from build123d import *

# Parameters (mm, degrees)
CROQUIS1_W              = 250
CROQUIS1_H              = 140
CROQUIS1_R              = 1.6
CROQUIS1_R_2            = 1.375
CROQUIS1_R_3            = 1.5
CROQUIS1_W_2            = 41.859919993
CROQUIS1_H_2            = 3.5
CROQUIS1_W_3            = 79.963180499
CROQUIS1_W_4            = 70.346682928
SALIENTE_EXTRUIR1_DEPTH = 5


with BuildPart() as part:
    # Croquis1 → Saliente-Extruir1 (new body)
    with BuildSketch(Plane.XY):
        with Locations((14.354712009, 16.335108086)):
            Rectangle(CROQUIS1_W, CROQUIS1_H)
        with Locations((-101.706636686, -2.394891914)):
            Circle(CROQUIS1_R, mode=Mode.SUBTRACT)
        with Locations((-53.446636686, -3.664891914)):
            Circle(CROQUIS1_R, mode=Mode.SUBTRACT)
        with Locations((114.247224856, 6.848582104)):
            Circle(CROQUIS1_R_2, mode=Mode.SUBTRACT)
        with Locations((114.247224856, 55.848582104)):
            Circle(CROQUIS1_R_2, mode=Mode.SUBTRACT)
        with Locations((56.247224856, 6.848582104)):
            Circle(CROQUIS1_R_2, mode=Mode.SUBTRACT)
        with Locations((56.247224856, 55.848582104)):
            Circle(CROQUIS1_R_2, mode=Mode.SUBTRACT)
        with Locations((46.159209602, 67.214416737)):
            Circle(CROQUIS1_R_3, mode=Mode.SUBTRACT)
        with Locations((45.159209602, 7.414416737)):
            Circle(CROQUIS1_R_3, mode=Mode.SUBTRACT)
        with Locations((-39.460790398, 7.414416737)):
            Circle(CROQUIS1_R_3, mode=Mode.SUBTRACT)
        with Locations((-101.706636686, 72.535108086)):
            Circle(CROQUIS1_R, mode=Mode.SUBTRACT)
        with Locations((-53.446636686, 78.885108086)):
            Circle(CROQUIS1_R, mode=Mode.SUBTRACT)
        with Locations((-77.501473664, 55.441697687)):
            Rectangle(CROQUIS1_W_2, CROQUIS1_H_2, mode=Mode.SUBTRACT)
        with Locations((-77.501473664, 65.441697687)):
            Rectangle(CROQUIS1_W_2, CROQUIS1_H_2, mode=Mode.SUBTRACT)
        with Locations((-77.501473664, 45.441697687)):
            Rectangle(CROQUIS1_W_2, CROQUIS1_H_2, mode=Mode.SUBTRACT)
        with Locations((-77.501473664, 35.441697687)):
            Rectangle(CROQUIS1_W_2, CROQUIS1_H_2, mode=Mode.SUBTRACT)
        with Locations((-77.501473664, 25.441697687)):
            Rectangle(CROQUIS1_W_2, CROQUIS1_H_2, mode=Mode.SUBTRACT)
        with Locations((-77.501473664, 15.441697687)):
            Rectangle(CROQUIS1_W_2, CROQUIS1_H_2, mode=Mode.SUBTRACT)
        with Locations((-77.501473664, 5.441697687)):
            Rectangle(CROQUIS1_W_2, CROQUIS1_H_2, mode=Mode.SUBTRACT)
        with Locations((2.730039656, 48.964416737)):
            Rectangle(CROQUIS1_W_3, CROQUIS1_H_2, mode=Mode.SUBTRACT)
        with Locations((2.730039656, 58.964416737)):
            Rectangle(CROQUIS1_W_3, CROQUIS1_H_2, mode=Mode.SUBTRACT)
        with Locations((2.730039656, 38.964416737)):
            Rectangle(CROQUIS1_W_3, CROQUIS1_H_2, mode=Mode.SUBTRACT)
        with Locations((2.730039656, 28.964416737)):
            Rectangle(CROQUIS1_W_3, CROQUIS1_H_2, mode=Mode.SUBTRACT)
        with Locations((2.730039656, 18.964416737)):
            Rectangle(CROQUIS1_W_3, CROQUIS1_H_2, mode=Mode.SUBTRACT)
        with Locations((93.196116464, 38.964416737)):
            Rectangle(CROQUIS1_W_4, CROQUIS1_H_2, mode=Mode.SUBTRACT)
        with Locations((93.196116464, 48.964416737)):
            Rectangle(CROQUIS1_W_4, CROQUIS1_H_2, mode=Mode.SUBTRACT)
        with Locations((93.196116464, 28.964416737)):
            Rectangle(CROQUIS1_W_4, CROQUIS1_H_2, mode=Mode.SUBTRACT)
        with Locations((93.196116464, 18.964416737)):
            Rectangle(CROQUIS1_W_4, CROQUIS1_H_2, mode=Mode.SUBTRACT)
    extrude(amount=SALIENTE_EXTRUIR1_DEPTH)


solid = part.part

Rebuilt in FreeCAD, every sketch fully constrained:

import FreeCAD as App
import Part
import Sketcher
from FreeCAD import Vector
Q = App.Units.Quantity

doc = App.newDocument("Part")
body = doc.addObject("PartDesign::Body", "Body")

sketch1 = body.newObject("Sketcher::SketchObject", "Sketch")
sketch1.AttachmentSupport = (doc.getObject("XY_Plane"), [""])
sketch1.MapMode = "FlatFace"
sketch1.addGeometry([
    Part.LineSegment(Vector(-110.6, 86.3, 0), Vector(-110.6, -53.7, 0)),
    Part.LineSegment(Vector(-110.6, -53.7, 0), Vector(139.4, -53.7, 0)),
    Part.LineSegment(Vector(139.4, -53.7, 0), Vector(139.4, 86.3, 0)),
    Part.LineSegment(Vector(139.4, 86.3, 0), Vector(-110.6, 86.3, 0)),
    Part.Circle(Vector(-101.7, -2.4, 0), Vector(0, 0, 1), 1.6),
    Part.LineSegment(Vector(-56.6, 3.7, 0), Vector(-98.4, 3.7, 0)),
    Part.LineSegment(Vector(-98.4, 3.7, 0), Vector(-98.4, 7.2, 0)),
    Part.LineSegment(Vector(-98.4, 7.2, 0), Vector(-56.6, 7.2, 0)),
    Part.LineSegment(Vector(-56.6, 7.2, 0), Vector(-56.6, 3.7, 0)),
    Part.Circle(Vector(-53.4, -3.7, 0), Vector(0, 0, 1), 1.6),
    Part.LineSegment(Vector(-56.6, 13.7, 0), Vector(-98.4, 13.7, 0)),
    Part.LineSegment(Vector(-98.4, 13.7, 0), Vector(-98.4, 17.2, 0)),
    Part.LineSegment(Vector(-98.4, 17.2, 0), Vector(-56.6, 17.2, 0)),
    Part.LineSegment(Vector(-56.6, 17.2, 0), Vector(-56.6, 13.7, 0)),
    Part.Circle(Vector(-39.5, 7.4, 0), Vector(0, 0, 1), 1.5),
    Part.LineSegment(Vector(-56.6, 23.7, 0), Vector(-98.4, 23.7, 0)),
    Part.LineSegment(Vector(-98.4, 23.7, 0), Vector(-98.4, 27.2, 0)),
    Part.LineSegment(Vector(-98.4, 27.2, 0), Vector(-56.6, 27.2, 0)),
    Part.LineSegment(Vector(-56.6, 27.2, 0), Vector(-56.6, 23.7, 0)),
    Part.LineSegment(Vector(-56.6, 33.7, 0), Vector(-98.4, 33.7, 0)),
    Part.LineSegment(Vector(-98.4, 33.7, 0), Vector(-98.4, 37.2, 0)),
    Part.LineSegment(Vector(-98.4, 37.2, 0), Vector(-56.6, 37.2, 0)),
    Part.LineSegment(Vector(-56.6, 37.2, 0), Vector(-56.6, 33.7, 0)),
    Part.LineSegment(Vector(42.7, 17.2, 0), Vector(-37.3, 17.2, 0)),
    Part.LineSegment(Vector(-37.3, 17.2, 0), Vector(-37.3, 20.7, 0)),
    Part.LineSegment(Vector(-37.3, 20.7, 0), Vector(42.7, 20.7, 0)),
    Part.LineSegment(Vector(42.7, 20.7, 0), Vector(42.7, 17.2, 0)),
    Part.LineSegment(Vector(42.7, 27.2, 0), Vector(-37.3, 27.2, 0)),
    Part.LineSegment(Vector(-37.3, 27.2, 0), Vector(-37.3, 30.7, 0)),
    Part.LineSegment(Vector(-37.3, 30.7, 0), Vector(42.7, 30.7, 0)),
    Part.LineSegment(Vector(42.7, 30.7, 0), Vector(42.7, 27.2, 0)),
    Part.Circle(Vector(45.2, 7.4, 0), Vector(0, 0, 1), 1.5),
    Part.Circle(Vector(56.2, 6.8, 0), Vector(0, 0, 1), 1.4),
    Part.Circle(Vector(114.2, 6.8, 0), Vector(0, 0, 1), 1.4),
    Part.LineSegment(Vector(128.4, 17.2, 0), Vector(58, 17.2, 0)),
    Part.LineSegment(Vector(58, 17.2, 0), Vector(58, 20.7, 0)),
    Part.LineSegment(Vector(58, 20.7, 0), Vector(128.4, 20.7, 0)),
    Part.LineSegment(Vector(128.4, 20.7, 0), Vector(128.4, 17.2, 0)),
    Part.LineSegment(Vector(128.4, 27.2, 0), Vector(58, 27.2, 0)),
    Part.LineSegment(Vector(58, 27.2, 0), Vector(58, 30.7, 0)),
    Part.LineSegment(Vector(58, 30.7, 0), Vector(128.4, 30.7, 0)),
    Part.LineSegment(Vector(128.4, 30.7, 0), Vector(128.4, 27.2, 0)),
    Part.LineSegment(Vector(-56.6, 43.7, 0), Vector(-98.4, 43.7, 0)),
    Part.LineSegment(Vector(-98.4, 43.7, 0), Vector(-98.4, 47.2, 0)),
    Part.LineSegment(Vector(-98.4, 47.2, 0), Vector(-56.6, 47.2, 0)),
    Part.LineSegment(Vector(-56.6, 47.2, 0), Vector(-56.6, 43.7, 0)),
    Part.LineSegment(Vector(-56.6, 53.7, 0), Vector(-98.4, 53.7, 0)),
    Part.LineSegment(Vector(-98.4, 53.7, 0), Vector(-98.4, 57.2, 0)),
    Part.LineSegment(Vector(-98.4, 57.2, 0), Vector(-56.6, 57.2, 0)),
    Part.LineSegment(Vector(-56.6, 57.2, 0), Vector(-56.6, 53.7, 0)),
    Part.LineSegment(Vector(42.7, 37.2, 0), Vector(-37.3, 37.2, 0)),
    Part.LineSegment(Vector(-37.3, 37.2, 0), Vector(-37.3, 40.7, 0)),
    Part.LineSegment(Vector(-37.3, 40.7, 0), Vector(42.7, 40.7, 0)),
    Part.LineSegment(Vector(42.7, 40.7, 0), Vector(42.7, 37.2, 0)),
    Part.LineSegment(Vector(42.7, 47.2, 0), Vector(-37.3, 47.2, 0)),
    Part.LineSegment(Vector(-37.3, 47.2, 0), Vector(-37.3, 50.7, 0)),
    Part.LineSegment(Vector(-37.3, 50.7, 0), Vector(42.7, 50.7, 0)),
    Part.LineSegment(Vector(42.7, 50.7, 0), Vector(42.7, 47.2, 0)),
    Part.LineSegment(Vector(42.7, 57.2, 0), Vector(-37.3, 57.2, 0)),
    Part.LineSegment(Vector(-37.3, 57.2, 0), Vector(-37.3, 60.7, 0)),
    Part.LineSegment(Vector(-37.3, 60.7, 0), Vector(42.7, 60.7, 0)),
    Part.LineSegment(Vector(42.7, 60.7, 0), Vector(42.7, 57.2, 0)),
    Part.LineSegment(Vector(-56.6, 63.7, 0), Vector(-98.4, 63.7, 0)),
    Part.LineSegment(Vector(-98.4, 63.7, 0), Vector(-98.4, 67.2, 0)),
    Part.LineSegment(Vector(-98.4, 67.2, 0), Vector(-56.6, 67.2, 0)),
    Part.LineSegment(Vector(-56.6, 67.2, 0), Vector(-56.6, 63.7, 0)),
    Part.Circle(Vector(-101.7, 72.5, 0), Vector(0, 0, 1), 1.6),
    Part.Circle(Vector(-53.4, 78.9, 0), Vector(0, 0, 1), 1.6),
    Part.Circle(Vector(56.2, 55.8, 0), Vector(0, 0, 1), 1.4),
    Part.LineSegment(Vector(128.4, 37.2, 0), Vector(58, 37.2, 0)),
    Part.LineSegment(Vector(58, 37.2, 0), Vector(58, 40.7, 0)),
    Part.LineSegment(Vector(58, 40.7, 0), Vector(128.4, 40.7, 0)),
    Part.LineSegment(Vector(128.4, 40.7, 0), Vector(128.4, 37.2, 0)),
    Part.LineSegment(Vector(128.4, 47.2, 0), Vector(58, 47.2, 0)),
    Part.LineSegment(Vector(58, 47.2, 0), Vector(58, 50.7, 0)),
    Part.LineSegment(Vector(58, 50.7, 0), Vector(128.4, 50.7, 0)),
    Part.LineSegment(Vector(128.4, 50.7, 0), Vector(128.4, 47.2, 0)),
    Part.Circle(Vector(114.2, 55.8, 0), Vector(0, 0, 1), 1.4),
    Part.Circle(Vector(46.2, 67.2, 0), Vector(0, 0, 1), 1.5),
], False)
sketch1.addConstraint([
    Sketcher.Constraint("Coincident", 0, 2, 1, 1),
    Sketcher.Constraint("Coincident", 1, 2, 2, 1),
    Sketcher.Constraint("Coincident", 2, 2, 3, 1),
    Sketcher.Constraint("Coincident", 3, 2, 0, 1),
    Sketcher.Constraint("Coincident", 5, 2, 6, 1),
    Sketcher.Constraint("Coincident", 6, 2, 7, 1),
    Sketcher.Constraint("Coincident", 7, 2, 8, 1),
    Sketcher.Constraint("Coincident", 8, 2, 5, 1),
    Sketcher.Constraint("Coincident", 10, 2, 11, 1),
    Sketcher.Constraint("Coincident", 11, 2, 12, 1),
    Sketcher.Constraint("Coincident", 12, 2, 13, 1),
    Sketcher.Constraint("Coincident", 13, 2, 10, 1),
    Sketcher.Constraint("Coincident", 15, 2, 16, 1),
    Sketcher.Constraint("Coincident", 16, 2, 17, 1),
    Sketcher.Constraint("Coincident", 17, 2, 18, 1),
    Sketcher.Constraint("Coincident", 18, 2, 15, 1),
    Sketcher.Constraint("Coincident", 19, 2, 20, 1),
    Sketcher.Constraint("Coincident", 20, 2, 21, 1),
    Sketcher.Constraint("Coincident", 21, 2, 22, 1),
    Sketcher.Constraint("Coincident", 22, 2, 19, 1),
    Sketcher.Constraint("Coincident", 23, 2, 24, 1),
    Sketcher.Constraint("Coincident", 24, 2, 25, 1),
    Sketcher.Constraint("Coincident", 25, 2, 26, 1),
    Sketcher.Constraint("Coincident", 26, 2, 23, 1),
    Sketcher.Constraint("Coincident", 27, 2, 28, 1),
    Sketcher.Constraint("Coincident", 28, 2, 29, 1),
    Sketcher.Constraint("Coincident", 29, 2, 30, 1),
    Sketcher.Constraint("Coincident", 30, 2, 27, 1),
    Sketcher.Constraint("Coincident", 34, 2, 35, 1),
    Sketcher.Constraint("Coincident", 35, 2, 36, 1),
    Sketcher.Constraint("Coincident", 36, 2, 37, 1),
    Sketcher.Constraint("Coincident", 37, 2, 34, 1),
    Sketcher.Constraint("Coincident", 38, 2, 39, 1),
    Sketcher.Constraint("Coincident", 39, 2, 40, 1),
    Sketcher.Constraint("Coincident", 40, 2, 41, 1),
    Sketcher.Constraint("Coincident", 41, 2, 38, 1),
    Sketcher.Constraint("Coincident", 42, 2, 43, 1),
    Sketcher.Constraint("Coincident", 43, 2, 44, 1),
    Sketcher.Constraint("Coincident", 44, 2, 45, 1),
    Sketcher.Constraint("Coincident", 45, 2, 42, 1),
    Sketcher.Constraint("Coincident", 46, 2, 47, 1),
    Sketcher.Constraint("Coincident", 47, 2, 48, 1),
    Sketcher.Constraint("Coincident", 48, 2, 49, 1),
    Sketcher.Constraint("Coincident", 49, 2, 46, 1),
    Sketcher.Constraint("Coincident", 50, 2, 51, 1),
    Sketcher.Constraint("Coincident", 51, 2, 52, 1),
    Sketcher.Constraint("Coincident", 52, 2, 53, 1),
    Sketcher.Constraint("Coincident", 53, 2, 50, 1),
    Sketcher.Constraint("Coincident", 54, 2, 55, 1),
    Sketcher.Constraint("Coincident", 55, 2, 56, 1),
    Sketcher.Constraint("Coincident", 56, 2, 57, 1),
    Sketcher.Constraint("Coincident", 57, 2, 54, 1),
    Sketcher.Constraint("Coincident", 58, 2, 59, 1),
    Sketcher.Constraint("Coincident", 59, 2, 60, 1),
    Sketcher.Constraint("Coincident", 60, 2, 61, 1),
    Sketcher.Constraint("Coincident", 61, 2, 58, 1),
    Sketcher.Constraint("Coincident", 62, 2, 63, 1),
    Sketcher.Constraint("Coincident", 63, 2, 64, 1),
    Sketcher.Constraint("Coincident", 64, 2, 65, 1),
    Sketcher.Constraint("Coincident", 65, 2, 62, 1),
    Sketcher.Constraint("Coincident", 69, 2, 70, 1),
    Sketcher.Constraint("Coincident", 70, 2, 71, 1),
    Sketcher.Constraint("Coincident", 71, 2, 72, 1),
    Sketcher.Constraint("Coincident", 72, 2, 69, 1),
    Sketcher.Constraint("Coincident", 73, 2, 74, 1),
    Sketcher.Constraint("Coincident", 74, 2, 75, 1),
    Sketcher.Constraint("Coincident", 75, 2, 76, 1),
    Sketcher.Constraint("Coincident", 76, 2, 73, 1),
    Sketcher.Constraint("Vertical", 0),
    Sketcher.Constraint("Horizontal", 1),
    Sketcher.Constraint("Vertical", 2),
    Sketcher.Constraint("Horizontal", 3),
    Sketcher.Constraint("Horizontal", 5),
    Sketcher.Constraint("Vertical", 6),
    Sketcher.Constraint("Horizontal", 7),
    Sketcher.Constraint("Vertical", 8),
    Sketcher.Constraint("Horizontal", 10),
    Sketcher.Constraint("Vertical", 11),
    Sketcher.Constraint("Horizontal", 12),
    Sketcher.Constraint("Vertical", 13),
    Sketcher.Constraint("Horizontal", 15),
    Sketcher.Constraint("Vertical", 16),
    Sketcher.Constraint("Horizontal", 17),
    Sketcher.Constraint("Vertical", 18),
    Sketcher.Constraint("Horizontal", 19),
    Sketcher.Constraint("Vertical", 20),
    Sketcher.Constraint("Horizontal", 21),
    Sketcher.Constraint("Vertical", 22),
    Sketcher.Constraint("Horizontal", 23),
    Sketcher.Constraint("Vertical", 24),
    Sketcher.Constraint("Horizontal", 25),
    Sketcher.Constraint("Vertical", 26),
    Sketcher.Constraint("Horizontal", 27),
    Sketcher.Constraint("Vertical", 28),
    Sketcher.Constraint("Horizontal", 29),
    Sketcher.Constraint("Vertical", 30),
    Sketcher.Constraint("Horizontal", 34),
    Sketcher.Constraint("Vertical", 35),
    Sketcher.Constraint("Horizontal", 36),
    Sketcher.Constraint("Vertical", 37),
    Sketcher.Constraint("Horizontal", 38),
    Sketcher.Constraint("Vertical", 39),
    Sketcher.Constraint("Horizontal", 40),
    Sketcher.Constraint("Vertical", 41),
    Sketcher.Constraint("Horizontal", 42),
    Sketcher.Constraint("Vertical", 43),
    Sketcher.Constraint("Horizontal", 44),
    Sketcher.Constraint("Vertical", 45),
    Sketcher.Constraint("Horizontal", 46),
    Sketcher.Constraint("Vertical", 47),
    Sketcher.Constraint("Horizontal", 48),
    Sketcher.Constraint("Vertical", 49),
    Sketcher.Constraint("Horizontal", 50),
    Sketcher.Constraint("Vertical", 51),
    Sketcher.Constraint("Horizontal", 52),
    Sketcher.Constraint("Vertical", 53),
    Sketcher.Constraint("Horizontal", 54),
    Sketcher.Constraint("Vertical", 55),
    Sketcher.Constraint("Horizontal", 56),
    Sketcher.Constraint("Vertical", 57),
    Sketcher.Constraint("Horizontal", 58),
    Sketcher.Constraint("Vertical", 59),
    Sketcher.Constraint("Horizontal", 60),
    Sketcher.Constraint("Vertical", 61),
    Sketcher.Constraint("Horizontal", 62),
    Sketcher.Constraint("Vertical", 63),
    Sketcher.Constraint("Horizontal", 64),
    Sketcher.Constraint("Vertical", 65),
    Sketcher.Constraint("Horizontal", 69),
    Sketcher.Constraint("Vertical", 70),
    Sketcher.Constraint("Horizontal", 71),
    Sketcher.Constraint("Vertical", 72),
    Sketcher.Constraint("Horizontal", 73),
    Sketcher.Constraint("Vertical", 74),
    Sketcher.Constraint("Horizontal", 75),
    Sketcher.Constraint("Vertical", 76),
    Sketcher.Constraint("Equal", 4, 9),
    Sketcher.Constraint("Equal", 14, 31),
    Sketcher.Constraint("Equal", 32, 33),
    Sketcher.Constraint("Equal", 9, 66),
    Sketcher.Constraint("Equal", 66, 67),
    Sketcher.Constraint("Equal", 33, 68),
    Sketcher.Constraint("Equal", 68, 77),
    Sketcher.Constraint("Equal", 31, 78),
    Sketcher.Constraint("Horizontal", 14, 3, 31, 3),
    Sketcher.Constraint("Horizontal", 32, 3, 33, 3),
    Sketcher.Constraint("Horizontal", 68, 3, 77, 3),
    Sketcher.Constraint("Horizontal", 26, 2, 34, 2),
    Sketcher.Constraint("Horizontal", 25, 2, 35, 2),
    Sketcher.Constraint("Horizontal", 30, 2, 38, 2),
    Sketcher.Constraint("Horizontal", 29, 2, 39, 2),
    Sketcher.Constraint("Horizontal", 53, 2, 69, 2),
    Sketcher.Constraint("Horizontal", 52, 2, 70, 2),
    Sketcher.Constraint("Horizontal", 57, 2, 73, 2),
    Sketcher.Constraint("Horizontal", 56, 2, 74, 2),
    Sketcher.Constraint("Vertical", 4, 3, 66, 3),
    Sketcher.Constraint("Vertical", 9, 3, 67, 3),
    Sketcher.Constraint("Vertical", 32, 3, 68, 3),
    Sketcher.Constraint("Vertical", 33, 3, 77, 3),
    Sketcher.Constraint("Vertical", 6, 2, 10, 2),
    Sketcher.Constraint("Vertical", 8, 2, 12, 2),
    Sketcher.Constraint("Vertical", 11, 2, 15, 2),
    Sketcher.Constraint("Vertical", 13, 2, 17, 2),
    Sketcher.Constraint("Vertical", 16, 2, 19, 2),
    Sketcher.Constraint("Vertical", 18, 2, 21, 2),
    Sketcher.Constraint("Vertical", 24, 2, 27, 2),
    Sketcher.Constraint("Vertical", 26, 2, 29, 2),
    Sketcher.Constraint("Vertical", 35, 2, 38, 2),
    Sketcher.Constraint("Vertical", 37, 2, 40, 2),
    Sketcher.Constraint("Vertical", 20, 2, 42, 2),
    Sketcher.Constraint("Vertical", 22, 2, 44, 2),
    Sketcher.Constraint("Vertical", 43, 2, 46, 2),
    Sketcher.Constraint("Vertical", 45, 2, 48, 2),
    Sketcher.Constraint("Vertical", 28, 2, 50, 2),
    Sketcher.Constraint("Vertical", 30, 2, 52, 2),
    Sketcher.Constraint("Vertical", 51, 2, 54, 2),
    Sketcher.Constraint("Vertical", 53, 2, 56, 2),
    Sketcher.Constraint("Vertical", 55, 2, 58, 2),
    Sketcher.Constraint("Vertical", 57, 2, 60, 2),
    Sketcher.Constraint("Vertical", 47, 2, 62, 2),
    Sketcher.Constraint("Vertical", 49, 2, 64, 2),
    Sketcher.Constraint("Vertical", 39, 2, 69, 2),
    Sketcher.Constraint("Vertical", 41, 2, 71, 2),
    Sketcher.Constraint("Vertical", 70, 2, 73, 2),
    Sketcher.Constraint("Vertical", 72, 2, 75, 2),
    Sketcher.Constraint("Equal", 8, 11),
    Sketcher.Constraint("Equal", 13, 16),
    Sketcher.Constraint("Equal", 18, 20),
    Sketcher.Constraint("Equal", 22, 24),
    Sketcher.Constraint("Equal", 26, 28),
    Sketcher.Constraint("Equal", 41, 43),
    Sketcher.Constraint("Equal", 45, 47),
    Sketcher.Constraint("Equal", 49, 51),
    Sketcher.Constraint("Equal", 53, 55),
    Sketcher.Constraint("Equal", 57, 59),
    Sketcher.Constraint("Equal", 61, 63),
    Sketcher.Constraint("Diameter", 14, Q("3 mm")),
    Sketcher.Constraint("Diameter", 4, Q("3.2 mm")),
    Sketcher.Constraint("Diameter", 32, Q("2.75 mm")),
    Sketcher.Constraint("DistanceX", 1, 1, 1, 2, Q("250 mm")),
    Sketcher.Constraint("DistanceY", 0, 2, 0, 1, Q("140 mm")),
    Sketcher.Constraint("DistanceY", 6, 1, 6, 2, Q("3.5 mm")),
    Sketcher.Constraint("DistanceX", 5, 2, 5, 1, Q("41.85992 mm")),
    Sketcher.Constraint("DistanceX", 23, 2, 23, 1, Q("79.96318 mm")),
    Sketcher.Constraint("DistanceX", 34, 2, 34, 1, Q("70.346683 mm")),
    Sketcher.Constraint("DistanceY", 4, 3, -1, 1, Q("2.394892 mm")),
    Sketcher.Constraint("DistanceY", 9, 3, -1, 1, Q("3.664892 mm")),
    Sketcher.Constraint("DistanceX", 14, 3, -1, 1, Q("39.46079 mm")),
    Sketcher.Constraint("DistanceX", -1, 1, 31, 3, Q("45.15921 mm")),
    Sketcher.Constraint("DistanceY", -1, 1, 66, 3, Q("72.535108 mm")),
    Sketcher.Constraint("DistanceY", -1, 1, 67, 3, Q("78.885108 mm")),
    Sketcher.Constraint("DistanceX", -1, 1, 78, 3, Q("46.15921 mm")),
    Sketcher.Constraint("DistanceY", 0, 2, -1, 1, Q("53.664892 mm")),
    Sketcher.Constraint("DistanceX", 23, 2, -1, 1, Q("37.251551 mm")),
    Sketcher.Constraint("DistanceX", 4, 3, -1, 1, Q("101.706637 mm")),
    Sketcher.Constraint("DistanceX", 9, 3, -1, 1, Q("53.446637 mm")),
    Sketcher.Constraint("DistanceY", -1, 1, 14, 3, Q("7.414417 mm")),
    Sketcher.Constraint("DistanceX", -1, 1, 32, 3, Q("56.247225 mm")),
    Sketcher.Constraint("DistanceY", -1, 1, 32, 3, Q("6.848582 mm")),
    Sketcher.Constraint("DistanceX", -1, 1, 33, 3, Q("114.247225 mm")),
    Sketcher.Constraint("DistanceY", -1, 1, 68, 3, Q("55.848582 mm")),
    Sketcher.Constraint("DistanceY", -1, 1, 78, 3, Q("67.214417 mm")),
    Sketcher.Constraint("DistanceX", 0, 2, -1, 1, Q("110.645288 mm")),
    Sketcher.Constraint("DistanceX", 5, 2, -1, 1, Q("98.431434 mm")),
    Sketcher.Constraint("DistanceY", -1, 1, 5, 2, Q("3.691698 mm")),
    Sketcher.Constraint("DistanceY", -1, 1, 10, 2, Q("13.691698 mm")),
    Sketcher.Constraint("DistanceY", -1, 1, 15, 2, Q("23.691698 mm")),
    Sketcher.Constraint("DistanceY", -1, 1, 19, 2, Q("33.691698 mm")),
    Sketcher.Constraint("DistanceY", -1, 1, 23, 2, Q("17.214417 mm")),
    Sketcher.Constraint("DistanceY", -1, 1, 27, 2, Q("27.214417 mm")),
    Sketcher.Constraint("DistanceX", -1, 1, 34, 2, Q("58.022775 mm")),
    Sketcher.Constraint("DistanceY", -1, 1, 42, 2, Q("43.691698 mm")),
    Sketcher.Constraint("DistanceY", -1, 1, 46, 2, Q("53.691698 mm")),
    Sketcher.Constraint("DistanceY", -1, 1, 50, 2, Q("37.214417 mm")),
    Sketcher.Constraint("DistanceY", -1, 1, 54, 2, Q("47.214417 mm")),
    Sketcher.Constraint("DistanceY", -1, 1, 58, 2, Q("57.214417 mm")),
    Sketcher.Constraint("DistanceY", -1, 1, 62, 2, Q("63.691698 mm")),
])
pad1 = body.newObject("PartDesign::Pad", "Pad")
pad1.Profile = sketch1
pad1.Length = 5

doc.recompute()
